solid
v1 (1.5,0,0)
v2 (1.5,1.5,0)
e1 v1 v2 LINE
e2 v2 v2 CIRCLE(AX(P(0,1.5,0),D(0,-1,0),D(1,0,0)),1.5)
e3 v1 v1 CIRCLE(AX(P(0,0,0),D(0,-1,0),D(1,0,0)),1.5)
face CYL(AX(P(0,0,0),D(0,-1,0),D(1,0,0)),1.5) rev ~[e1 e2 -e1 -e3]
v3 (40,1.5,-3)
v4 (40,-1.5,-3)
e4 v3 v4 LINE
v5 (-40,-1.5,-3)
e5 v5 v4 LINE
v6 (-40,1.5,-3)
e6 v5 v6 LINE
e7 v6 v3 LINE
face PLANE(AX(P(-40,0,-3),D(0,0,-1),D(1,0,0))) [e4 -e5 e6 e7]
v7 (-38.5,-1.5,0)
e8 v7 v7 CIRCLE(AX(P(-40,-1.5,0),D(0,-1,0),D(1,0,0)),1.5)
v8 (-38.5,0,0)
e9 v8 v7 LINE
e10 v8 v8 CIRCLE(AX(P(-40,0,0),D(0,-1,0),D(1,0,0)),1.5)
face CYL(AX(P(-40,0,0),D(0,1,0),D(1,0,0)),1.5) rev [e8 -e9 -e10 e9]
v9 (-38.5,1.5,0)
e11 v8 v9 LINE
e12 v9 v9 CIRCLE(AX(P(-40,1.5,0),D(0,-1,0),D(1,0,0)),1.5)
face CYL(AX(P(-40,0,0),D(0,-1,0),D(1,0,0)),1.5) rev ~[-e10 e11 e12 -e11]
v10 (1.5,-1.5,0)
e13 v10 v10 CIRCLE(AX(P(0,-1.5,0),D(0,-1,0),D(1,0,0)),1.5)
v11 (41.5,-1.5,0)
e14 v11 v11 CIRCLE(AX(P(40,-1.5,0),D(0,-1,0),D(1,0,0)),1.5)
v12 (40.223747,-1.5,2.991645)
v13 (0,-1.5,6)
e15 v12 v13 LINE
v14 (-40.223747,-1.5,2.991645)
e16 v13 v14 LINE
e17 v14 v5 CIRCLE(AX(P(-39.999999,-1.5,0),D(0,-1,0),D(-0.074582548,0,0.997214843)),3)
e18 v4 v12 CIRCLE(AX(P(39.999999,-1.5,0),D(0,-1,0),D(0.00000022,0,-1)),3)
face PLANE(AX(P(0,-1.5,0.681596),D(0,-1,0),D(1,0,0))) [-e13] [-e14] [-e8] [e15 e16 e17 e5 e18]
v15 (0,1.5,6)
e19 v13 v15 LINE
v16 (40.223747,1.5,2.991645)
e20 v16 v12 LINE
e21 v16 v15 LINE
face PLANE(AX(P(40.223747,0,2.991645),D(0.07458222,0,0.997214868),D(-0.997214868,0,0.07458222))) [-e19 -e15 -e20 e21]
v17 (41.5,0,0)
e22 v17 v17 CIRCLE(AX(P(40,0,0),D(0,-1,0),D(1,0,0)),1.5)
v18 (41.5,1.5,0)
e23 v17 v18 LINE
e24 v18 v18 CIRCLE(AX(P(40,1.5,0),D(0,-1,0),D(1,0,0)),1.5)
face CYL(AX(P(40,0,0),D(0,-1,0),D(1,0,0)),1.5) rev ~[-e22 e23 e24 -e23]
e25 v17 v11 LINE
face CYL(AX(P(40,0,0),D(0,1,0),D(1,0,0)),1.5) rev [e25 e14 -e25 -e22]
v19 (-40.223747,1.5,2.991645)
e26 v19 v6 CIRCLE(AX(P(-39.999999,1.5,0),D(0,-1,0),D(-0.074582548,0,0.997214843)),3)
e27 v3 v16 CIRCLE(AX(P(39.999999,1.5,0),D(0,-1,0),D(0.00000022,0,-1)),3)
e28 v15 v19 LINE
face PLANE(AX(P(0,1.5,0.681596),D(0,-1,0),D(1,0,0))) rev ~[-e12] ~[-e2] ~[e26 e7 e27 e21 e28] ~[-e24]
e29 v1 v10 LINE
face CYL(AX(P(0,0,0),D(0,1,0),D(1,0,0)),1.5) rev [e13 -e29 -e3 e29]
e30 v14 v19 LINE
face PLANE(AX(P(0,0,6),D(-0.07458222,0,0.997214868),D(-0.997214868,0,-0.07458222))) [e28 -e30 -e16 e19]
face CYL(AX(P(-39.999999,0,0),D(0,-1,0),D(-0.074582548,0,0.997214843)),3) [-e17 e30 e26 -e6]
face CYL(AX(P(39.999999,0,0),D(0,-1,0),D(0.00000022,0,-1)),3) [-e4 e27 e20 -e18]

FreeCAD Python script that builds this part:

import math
import FreeCAD as App
import Part
import Sketcher

V = App.Vector
Q = App.Units.Quantity

doc = App.newDocument("Part")
body = doc.addObject("PartDesign::Body", "Body")

sketch1 = body.newObject("Sketcher::SketchObject", "Sketch")
sketch1.AttachmentSupport = (doc.getObject("XZ_Plane"), [""])
sketch1.MapMode = "FlatFace"
sketch1.addGeometry([
    Part.LineSegment(V(-40, -3, 0), V(40, -3, 0)),
    Part.ArcOfCircle(Part.Circle(V(39.999999, 0, 0), V(0, 0, 1), 3), math.radians(-89.999987), math.radians(85.722763)),
    Part.LineSegment(V(40.223747, 2.991645, 0), V(0, 6, 0)),
    Part.LineSegment(V(0, 6, 0), V(-40.223747, 2.991645, 0)),
    Part.ArcOfCircle(Part.Circle(V(-39.999999, 0, 0), V(0, 0, 1), 3), math.radians(94.277237), math.radians(269.999987)),
    Part.Circle(V(-40, 0, 0), V(0, 0, 1), 1.5),
    Part.Circle(V(0, 0, 0), V(0, 0, 1), 1.5),
    Part.Circle(V(40, 0, 0), V(0, 0, 1), 1.5),
], False)
sketch1.addConstraint([
    Sketcher.Constraint("Tangent", 0, 2, 1, 1),
    Sketcher.Constraint("Tangent", 1, 2, 2, 1),
    Sketcher.Constraint("Coincident", 2, 2, 3, 1),
    Sketcher.Constraint("Tangent", 3, 2, 4, 1),
    Sketcher.Constraint("Tangent", 4, 2, 0, 1),
    Sketcher.Constraint("Horizontal", 0),
    Sketcher.Constraint("Coincident", 6, 3, -1, 1),
    Sketcher.Constraint("Coincident", 5, 3, 4, 3),
    Sketcher.Constraint("Coincident", 7, 3, 1, 3),
    Sketcher.Constraint("Equal", 1, 4),
    Sketcher.Constraint("Equal", 5, 6),
    Sketcher.Constraint("Equal", 6, 7),
    Sketcher.Constraint("Symmetric", 1, 3, 4, 3, -1, 1),
    Sketcher.Constraint("PointOnObject", 2, 2, -2),
    Sketcher.Constraint("Diameter", 5, Q("3 mm")),
    Sketcher.Constraint("Radius", 1, Q("3 mm")),
    Sketcher.Constraint("DistanceX", 0, 1, 0, 2, Q("80 mm")),
    Sketcher.Constraint("DistanceY", -1, 1, 2, 2, Q("6 mm")),
])
pad1 = body.newObject("PartDesign::Pad", "Pad")
pad1.Profile = sketch1
pad1.Type = "TwoLengths"
pad1.Length = 1.5
pad1.Length2 = 1.5

doc.recompute()
